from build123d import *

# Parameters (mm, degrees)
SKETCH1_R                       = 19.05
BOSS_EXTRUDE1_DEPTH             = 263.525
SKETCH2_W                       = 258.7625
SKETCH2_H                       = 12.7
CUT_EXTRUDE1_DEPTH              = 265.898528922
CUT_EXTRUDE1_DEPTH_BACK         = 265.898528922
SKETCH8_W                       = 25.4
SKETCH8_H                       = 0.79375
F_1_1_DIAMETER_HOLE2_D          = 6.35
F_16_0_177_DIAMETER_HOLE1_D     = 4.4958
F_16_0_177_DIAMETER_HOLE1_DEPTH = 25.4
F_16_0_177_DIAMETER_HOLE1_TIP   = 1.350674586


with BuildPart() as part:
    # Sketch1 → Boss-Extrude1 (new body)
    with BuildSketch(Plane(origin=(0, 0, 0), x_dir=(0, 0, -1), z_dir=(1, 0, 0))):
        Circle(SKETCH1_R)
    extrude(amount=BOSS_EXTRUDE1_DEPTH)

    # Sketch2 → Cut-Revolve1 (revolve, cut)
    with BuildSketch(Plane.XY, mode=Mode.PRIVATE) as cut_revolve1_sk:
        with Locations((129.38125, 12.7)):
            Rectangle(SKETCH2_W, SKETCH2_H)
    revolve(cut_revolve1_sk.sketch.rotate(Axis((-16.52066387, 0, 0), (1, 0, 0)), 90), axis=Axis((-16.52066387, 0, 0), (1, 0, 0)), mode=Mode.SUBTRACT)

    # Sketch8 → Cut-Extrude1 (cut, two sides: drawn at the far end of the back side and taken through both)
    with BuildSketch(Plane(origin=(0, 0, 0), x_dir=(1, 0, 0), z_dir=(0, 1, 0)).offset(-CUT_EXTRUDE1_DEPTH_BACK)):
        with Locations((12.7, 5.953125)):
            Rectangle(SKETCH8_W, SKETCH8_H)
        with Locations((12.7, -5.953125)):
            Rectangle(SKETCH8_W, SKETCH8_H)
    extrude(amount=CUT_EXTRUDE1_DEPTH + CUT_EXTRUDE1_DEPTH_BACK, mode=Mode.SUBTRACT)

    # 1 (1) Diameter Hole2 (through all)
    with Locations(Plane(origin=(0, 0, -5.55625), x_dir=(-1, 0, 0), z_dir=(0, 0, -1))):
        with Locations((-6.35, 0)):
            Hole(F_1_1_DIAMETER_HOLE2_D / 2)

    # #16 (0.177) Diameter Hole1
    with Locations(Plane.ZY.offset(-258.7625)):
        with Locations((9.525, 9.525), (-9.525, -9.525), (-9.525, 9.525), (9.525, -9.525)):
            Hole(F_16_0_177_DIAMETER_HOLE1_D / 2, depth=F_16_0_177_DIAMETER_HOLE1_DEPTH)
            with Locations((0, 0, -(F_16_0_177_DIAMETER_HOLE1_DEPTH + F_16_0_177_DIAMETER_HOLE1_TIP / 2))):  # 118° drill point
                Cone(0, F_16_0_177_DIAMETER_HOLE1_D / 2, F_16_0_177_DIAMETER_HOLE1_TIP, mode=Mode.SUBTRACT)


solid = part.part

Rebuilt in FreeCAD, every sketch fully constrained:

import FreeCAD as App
import Part
import Sketcher
from FreeCAD import Vector
Q = App.Units.Quantity

doc = App.newDocument("Part")
body = doc.addObject("PartDesign::Body", "Body")

# Sketch on YZ plane
sketch1 = body.newObject("Sketcher::SketchObject", "Sketch")
sketch1.AttachmentSupport = (doc.getObject("YZ_Plane"), [""])
sketch1.MapMode = "FlatFace"
sketch1.addGeometry(Part.Circle(Vector(0, 0, 0), Vector(0, 0, 1), 19.05), False)
sketch1.addConstraint(Sketcher.Constraint("Coincident", 0, 3, -1, 1))
sketch1.addConstraint(Sketcher.Constraint("Diameter", 0, Q("1.5 in")))
pad1 = body.newObject("PartDesign::Pad", "Pad")
pad1.Profile = sketch1
pad1.Length = Q("10.375 in")

# Sketch on XY plane
sketch2 = body.newObject("Sketcher::SketchObject", "Sketch001")
sketch2.AttachmentSupport = (doc.getObject("XY_Plane"), [""])
sketch2.MapMode = "FlatFace"
sketch2.addGeometry(Part.LineSegment(Vector(0, 19.05, 0), Vector(0, 6.35, 0)), False)
sketch2.addGeometry(Part.LineSegment(Vector(0, 6.35, 0), Vector(258.7625, 6.35, 0)), False)
sketch2.addGeometry(Part.LineSegment(Vector(258.7625, 6.35, 0), Vector(258.7625, 19.05, 0)), False)
sketch2.addGeometry(Part.LineSegment(Vector(258.7625, 19.05, 0), Vector(0, 19.05, 0)), False)
sketch2.addConstraint(Sketcher.Constraint("Coincident", 0, 2, 1, 1))
sketch2.addConstraint(Sketcher.Constraint("Coincident", 1, 2, 2, 1))
sketch2.addConstraint(Sketcher.Constraint("Coincident", 2, 2, 3, 1))
sketch2.addConstraint(Sketcher.Constraint("Coincident", 3, 2, 0, 1))
sketch2.addConstraint(Sketcher.Constraint("Vertical", 0))
sketch2.addConstraint(Sketcher.Constraint("Horizontal", 1))
sketch2.addConstraint(Sketcher.Constraint("Vertical", 2))
sketch2.addConstraint(Sketcher.Constraint("Horizontal", 3))
sketch2.addConstraint(Sketcher.Constraint("PointOnObject", 0, 2, -2))
sketch2.addConstraint(Sketcher.Constraint("DistanceY", 0, 2, 0, 1, Q("0.5 in")))
sketch2.addConstraint(Sketcher.Constraint("DistanceX", 1, 1, 1, 2, Q("10.1875 in")))
sketch2.addConstraint(Sketcher.Constraint("DistanceY", -1, 1, 0, 2, Q("0.25 in")))
groove = body.newObject("PartDesign::Groove", "Groove")
groove.Profile = sketch2
groove.ReferenceAxis = (sketch2, ["H_Axis"])
groove.Angle = 360

# Sketch on XZ plane
sketch3 = body.newObject("Sketcher::SketchObject", "Sketch002")
sketch3.AttachmentSupport = (doc.getObject("XZ_Plane"), [""])
sketch3.MapMode = "FlatFace"
sketch3.addGeometry(Part.LineSegment(Vector(0, -6.35, 0), Vector(0, -5.55625, 0)), False)
sketch3.addGeometry(Part.LineSegment(Vector(0, -5.55625, 0), Vector(25.4, -5.55625, 0)), False)
sketch3.addGeometry(Part.LineSegment(Vector(25.4, -5.55625, 0), Vector(25.4, -6.35, 0)), False)
sketch3.addGeometry(Part.LineSegment(Vector(25.4, -6.35, 0), Vector(0, -6.35, 0)), False)
sketch3.addGeometry(Part.LineSegment(Vector(0, 5.55625, 0), Vector(0, 6.35, 0)), False)
sketch3.addGeometry(Part.LineSegment(Vector(0, 6.35, 0), Vector(25.4, 6.35, 0)), False)
sketch3.addGeometry(Part.LineSegment(Vector(25.4, 6.35, 0), Vector(25.4, 5.55625, 0)), False)
sketch3.addGeometry(Part.LineSegment(Vector(25.4, 5.55625, 0), Vector(0, 5.55625, 0)), False)
sketch3.addConstraint(Sketcher.Constraint("Coincident", 0, 2, 1, 1))
sketch3.addConstraint(Sketcher.Constraint("Coincident", 1, 2, 2, 1))
sketch3.addConstraint(Sketcher.Constraint("Coincident", 2, 2, 3, 1))
sketch3.addConstraint(Sketcher.Constraint("Coincident", 3, 2, 0, 1))
sketch3.addConstraint(Sketcher.Constraint("Coincident", 4, 2, 5, 1))
sketch3.addConstraint(Sketcher.Constraint("Coincident", 5, 2, 6, 1))
sketch3.addConstraint(Sketcher.Constraint("Coincident", 6, 2, 7, 1))
sketch3.addConstraint(Sketcher.Constraint("Coincident", 7, 2, 4, 1))
sketch3.addConstraint(Sketcher.Constraint("Vertical", 0))
sketch3.addConstraint(Sketcher.Constraint("Horizontal", 1))
sketch3.addConstraint(Sketcher.Constraint("Vertical", 2))
sketch3.addConstraint(Sketcher.Constraint("Horizontal", 3))
sketch3.addConstraint(Sketcher.Constraint("Vertical", 4))
sketch3.addConstraint(Sketcher.Constraint("Horizontal", 5))
sketch3.addConstraint(Sketcher.Constraint("Vertical", 6))
sketch3.addConstraint(Sketcher.Constraint("Horizontal", 7))
sketch3.addConstraint(Sketcher.Constraint("Symmetric", 3, 2, 4, 2, -1, 1))
sketch3.addConstraint(Sketcher.Constraint("Symmetric", 1, 2, 6, 2, -1))
sketch3.addConstraint(Sketcher.Constraint("PointOnObject", 0, 2, -2))
sketch3.addConstraint(Sketcher.Constraint("DistanceX", 1, 1, 1, 2, Q("1 in")))
sketch3.addConstraint(Sketcher.Constraint("DistanceY", 3, 2, 4, 2, Q("0.5 in")))
sketch3.addConstraint(Sketcher.Constraint("DistanceY", 0, 1, 0, 2, Q("0.03125 in")))
pocket1 = body.newObject("PartDesign::Pocket", "Pocket")
pocket1.Profile = sketch3
pocket1.Type = "ThroughAll"
pocket1.Midplane = True

# Sketch on XY plane
sketch4 = body.newObject("Sketcher::SketchObject", "Sketch003")
sketch4.AttachmentSupport = (doc.getObject("XY_Plane"), [""])
sketch4.MapMode = "FlatFace"
sketch4.AttachmentOffset = App.Placement(Vector(0, 0, -0.21875 * 25.4), App.Rotation())
sketch4.addGeometry(Part.Circle(Vector(6.35, 0, 0), Vector(0, 0, 1), 3.175), False)
sketch4.addConstraint(Sketcher.Constraint("PointOnObject", 0, 3, -1))
sketch4.addConstraint(Sketcher.Constraint("Diameter", 0, Q("0.25 in")))
sketch4.addConstraint(Sketcher.Constraint("DistanceX", -1, 1, 0, 3, Q("0.25 in")))
doc.recompute()
hole = body.newObject("PartDesign::Hole", "Hole")
hole.Profile = sketch4
hole.ThreadType = "None"
hole.Diameter = Q("0.25 in")
hole.DepthType = "ThroughAll"
hole.Reversed = True

# Sketch on YZ plane
sketch5 = body.newObject("Sketcher::SketchObject", "Sketch004")
sketch5.AttachmentSupport = (doc.getObject("YZ_Plane"), [""])
sketch5.MapMode = "FlatFace"
sketch5.AttachmentOffset = App.Placement(Vector(0, 0, 10.1875 * 25.4), App.Rotation())
sketch5.addGeometry(Part.Circle(Vector(9.525, 9.525, 0), Vector(0, 0, 1), 2.2479), False)
sketch5.addGeometry(Part.Circle(Vector(-9.525, -9.525, 0), Vector(0, 0, 1), 2.2479), False)
sketch5.addGeometry(Part.Circle(Vector(9.525, -9.525, 0), Vector(0, 0, 1), 2.2479), False)
sketch5.addGeometry(Part.Circle(Vector(-9.525, 9.525, 0), Vector(0, 0, 1), 2.2479), False)
sketch5.addConstraint(Sketcher.Constraint("Equal", 0, 1))
sketch5.addConstraint(Sketcher.Constraint("Equal", 1, 2))
sketch5.addConstraint(Sketcher.Constraint("Equal", 2, 3))
sketch5.addConstraint(Sketcher.Constraint("Symmetric", 0, 3, 1, 3, -1, 1))
sketch5.addConstraint(Sketcher.Constraint("Symmetric", 2, 3, 3, 3, -1, 1))
sketch5.addConstraint(Sketcher.Constraint("Symmetric", 1, 3, 2, 3, -2))
sketch5.addConstraint(Sketcher.Constraint("Diameter", 0, Q("0.177 in")))
sketch5.addConstraint(Sketcher.Constraint("DistanceX", 1, 3, 0, 3, Q("0.75 in")))
sketch5.addConstraint(Sketcher.Constraint("DistanceY", 1, 3, 0, 3, Q("0.75 in")))
doc.recompute()
hole2 = body.newObject("PartDesign::Hole", "Hole001")
hole2.Profile = sketch5
hole2.ThreadType = "None"
hole2.Diameter = Q("0.177 in")
hole2.DepthType = "Dimension"
hole2.Depth = Q("1 in")
hole2.DrillPoint = "Angled"
hole2.DrillPointAngle = 118
hole2.Reversed = True

doc.recompute()
